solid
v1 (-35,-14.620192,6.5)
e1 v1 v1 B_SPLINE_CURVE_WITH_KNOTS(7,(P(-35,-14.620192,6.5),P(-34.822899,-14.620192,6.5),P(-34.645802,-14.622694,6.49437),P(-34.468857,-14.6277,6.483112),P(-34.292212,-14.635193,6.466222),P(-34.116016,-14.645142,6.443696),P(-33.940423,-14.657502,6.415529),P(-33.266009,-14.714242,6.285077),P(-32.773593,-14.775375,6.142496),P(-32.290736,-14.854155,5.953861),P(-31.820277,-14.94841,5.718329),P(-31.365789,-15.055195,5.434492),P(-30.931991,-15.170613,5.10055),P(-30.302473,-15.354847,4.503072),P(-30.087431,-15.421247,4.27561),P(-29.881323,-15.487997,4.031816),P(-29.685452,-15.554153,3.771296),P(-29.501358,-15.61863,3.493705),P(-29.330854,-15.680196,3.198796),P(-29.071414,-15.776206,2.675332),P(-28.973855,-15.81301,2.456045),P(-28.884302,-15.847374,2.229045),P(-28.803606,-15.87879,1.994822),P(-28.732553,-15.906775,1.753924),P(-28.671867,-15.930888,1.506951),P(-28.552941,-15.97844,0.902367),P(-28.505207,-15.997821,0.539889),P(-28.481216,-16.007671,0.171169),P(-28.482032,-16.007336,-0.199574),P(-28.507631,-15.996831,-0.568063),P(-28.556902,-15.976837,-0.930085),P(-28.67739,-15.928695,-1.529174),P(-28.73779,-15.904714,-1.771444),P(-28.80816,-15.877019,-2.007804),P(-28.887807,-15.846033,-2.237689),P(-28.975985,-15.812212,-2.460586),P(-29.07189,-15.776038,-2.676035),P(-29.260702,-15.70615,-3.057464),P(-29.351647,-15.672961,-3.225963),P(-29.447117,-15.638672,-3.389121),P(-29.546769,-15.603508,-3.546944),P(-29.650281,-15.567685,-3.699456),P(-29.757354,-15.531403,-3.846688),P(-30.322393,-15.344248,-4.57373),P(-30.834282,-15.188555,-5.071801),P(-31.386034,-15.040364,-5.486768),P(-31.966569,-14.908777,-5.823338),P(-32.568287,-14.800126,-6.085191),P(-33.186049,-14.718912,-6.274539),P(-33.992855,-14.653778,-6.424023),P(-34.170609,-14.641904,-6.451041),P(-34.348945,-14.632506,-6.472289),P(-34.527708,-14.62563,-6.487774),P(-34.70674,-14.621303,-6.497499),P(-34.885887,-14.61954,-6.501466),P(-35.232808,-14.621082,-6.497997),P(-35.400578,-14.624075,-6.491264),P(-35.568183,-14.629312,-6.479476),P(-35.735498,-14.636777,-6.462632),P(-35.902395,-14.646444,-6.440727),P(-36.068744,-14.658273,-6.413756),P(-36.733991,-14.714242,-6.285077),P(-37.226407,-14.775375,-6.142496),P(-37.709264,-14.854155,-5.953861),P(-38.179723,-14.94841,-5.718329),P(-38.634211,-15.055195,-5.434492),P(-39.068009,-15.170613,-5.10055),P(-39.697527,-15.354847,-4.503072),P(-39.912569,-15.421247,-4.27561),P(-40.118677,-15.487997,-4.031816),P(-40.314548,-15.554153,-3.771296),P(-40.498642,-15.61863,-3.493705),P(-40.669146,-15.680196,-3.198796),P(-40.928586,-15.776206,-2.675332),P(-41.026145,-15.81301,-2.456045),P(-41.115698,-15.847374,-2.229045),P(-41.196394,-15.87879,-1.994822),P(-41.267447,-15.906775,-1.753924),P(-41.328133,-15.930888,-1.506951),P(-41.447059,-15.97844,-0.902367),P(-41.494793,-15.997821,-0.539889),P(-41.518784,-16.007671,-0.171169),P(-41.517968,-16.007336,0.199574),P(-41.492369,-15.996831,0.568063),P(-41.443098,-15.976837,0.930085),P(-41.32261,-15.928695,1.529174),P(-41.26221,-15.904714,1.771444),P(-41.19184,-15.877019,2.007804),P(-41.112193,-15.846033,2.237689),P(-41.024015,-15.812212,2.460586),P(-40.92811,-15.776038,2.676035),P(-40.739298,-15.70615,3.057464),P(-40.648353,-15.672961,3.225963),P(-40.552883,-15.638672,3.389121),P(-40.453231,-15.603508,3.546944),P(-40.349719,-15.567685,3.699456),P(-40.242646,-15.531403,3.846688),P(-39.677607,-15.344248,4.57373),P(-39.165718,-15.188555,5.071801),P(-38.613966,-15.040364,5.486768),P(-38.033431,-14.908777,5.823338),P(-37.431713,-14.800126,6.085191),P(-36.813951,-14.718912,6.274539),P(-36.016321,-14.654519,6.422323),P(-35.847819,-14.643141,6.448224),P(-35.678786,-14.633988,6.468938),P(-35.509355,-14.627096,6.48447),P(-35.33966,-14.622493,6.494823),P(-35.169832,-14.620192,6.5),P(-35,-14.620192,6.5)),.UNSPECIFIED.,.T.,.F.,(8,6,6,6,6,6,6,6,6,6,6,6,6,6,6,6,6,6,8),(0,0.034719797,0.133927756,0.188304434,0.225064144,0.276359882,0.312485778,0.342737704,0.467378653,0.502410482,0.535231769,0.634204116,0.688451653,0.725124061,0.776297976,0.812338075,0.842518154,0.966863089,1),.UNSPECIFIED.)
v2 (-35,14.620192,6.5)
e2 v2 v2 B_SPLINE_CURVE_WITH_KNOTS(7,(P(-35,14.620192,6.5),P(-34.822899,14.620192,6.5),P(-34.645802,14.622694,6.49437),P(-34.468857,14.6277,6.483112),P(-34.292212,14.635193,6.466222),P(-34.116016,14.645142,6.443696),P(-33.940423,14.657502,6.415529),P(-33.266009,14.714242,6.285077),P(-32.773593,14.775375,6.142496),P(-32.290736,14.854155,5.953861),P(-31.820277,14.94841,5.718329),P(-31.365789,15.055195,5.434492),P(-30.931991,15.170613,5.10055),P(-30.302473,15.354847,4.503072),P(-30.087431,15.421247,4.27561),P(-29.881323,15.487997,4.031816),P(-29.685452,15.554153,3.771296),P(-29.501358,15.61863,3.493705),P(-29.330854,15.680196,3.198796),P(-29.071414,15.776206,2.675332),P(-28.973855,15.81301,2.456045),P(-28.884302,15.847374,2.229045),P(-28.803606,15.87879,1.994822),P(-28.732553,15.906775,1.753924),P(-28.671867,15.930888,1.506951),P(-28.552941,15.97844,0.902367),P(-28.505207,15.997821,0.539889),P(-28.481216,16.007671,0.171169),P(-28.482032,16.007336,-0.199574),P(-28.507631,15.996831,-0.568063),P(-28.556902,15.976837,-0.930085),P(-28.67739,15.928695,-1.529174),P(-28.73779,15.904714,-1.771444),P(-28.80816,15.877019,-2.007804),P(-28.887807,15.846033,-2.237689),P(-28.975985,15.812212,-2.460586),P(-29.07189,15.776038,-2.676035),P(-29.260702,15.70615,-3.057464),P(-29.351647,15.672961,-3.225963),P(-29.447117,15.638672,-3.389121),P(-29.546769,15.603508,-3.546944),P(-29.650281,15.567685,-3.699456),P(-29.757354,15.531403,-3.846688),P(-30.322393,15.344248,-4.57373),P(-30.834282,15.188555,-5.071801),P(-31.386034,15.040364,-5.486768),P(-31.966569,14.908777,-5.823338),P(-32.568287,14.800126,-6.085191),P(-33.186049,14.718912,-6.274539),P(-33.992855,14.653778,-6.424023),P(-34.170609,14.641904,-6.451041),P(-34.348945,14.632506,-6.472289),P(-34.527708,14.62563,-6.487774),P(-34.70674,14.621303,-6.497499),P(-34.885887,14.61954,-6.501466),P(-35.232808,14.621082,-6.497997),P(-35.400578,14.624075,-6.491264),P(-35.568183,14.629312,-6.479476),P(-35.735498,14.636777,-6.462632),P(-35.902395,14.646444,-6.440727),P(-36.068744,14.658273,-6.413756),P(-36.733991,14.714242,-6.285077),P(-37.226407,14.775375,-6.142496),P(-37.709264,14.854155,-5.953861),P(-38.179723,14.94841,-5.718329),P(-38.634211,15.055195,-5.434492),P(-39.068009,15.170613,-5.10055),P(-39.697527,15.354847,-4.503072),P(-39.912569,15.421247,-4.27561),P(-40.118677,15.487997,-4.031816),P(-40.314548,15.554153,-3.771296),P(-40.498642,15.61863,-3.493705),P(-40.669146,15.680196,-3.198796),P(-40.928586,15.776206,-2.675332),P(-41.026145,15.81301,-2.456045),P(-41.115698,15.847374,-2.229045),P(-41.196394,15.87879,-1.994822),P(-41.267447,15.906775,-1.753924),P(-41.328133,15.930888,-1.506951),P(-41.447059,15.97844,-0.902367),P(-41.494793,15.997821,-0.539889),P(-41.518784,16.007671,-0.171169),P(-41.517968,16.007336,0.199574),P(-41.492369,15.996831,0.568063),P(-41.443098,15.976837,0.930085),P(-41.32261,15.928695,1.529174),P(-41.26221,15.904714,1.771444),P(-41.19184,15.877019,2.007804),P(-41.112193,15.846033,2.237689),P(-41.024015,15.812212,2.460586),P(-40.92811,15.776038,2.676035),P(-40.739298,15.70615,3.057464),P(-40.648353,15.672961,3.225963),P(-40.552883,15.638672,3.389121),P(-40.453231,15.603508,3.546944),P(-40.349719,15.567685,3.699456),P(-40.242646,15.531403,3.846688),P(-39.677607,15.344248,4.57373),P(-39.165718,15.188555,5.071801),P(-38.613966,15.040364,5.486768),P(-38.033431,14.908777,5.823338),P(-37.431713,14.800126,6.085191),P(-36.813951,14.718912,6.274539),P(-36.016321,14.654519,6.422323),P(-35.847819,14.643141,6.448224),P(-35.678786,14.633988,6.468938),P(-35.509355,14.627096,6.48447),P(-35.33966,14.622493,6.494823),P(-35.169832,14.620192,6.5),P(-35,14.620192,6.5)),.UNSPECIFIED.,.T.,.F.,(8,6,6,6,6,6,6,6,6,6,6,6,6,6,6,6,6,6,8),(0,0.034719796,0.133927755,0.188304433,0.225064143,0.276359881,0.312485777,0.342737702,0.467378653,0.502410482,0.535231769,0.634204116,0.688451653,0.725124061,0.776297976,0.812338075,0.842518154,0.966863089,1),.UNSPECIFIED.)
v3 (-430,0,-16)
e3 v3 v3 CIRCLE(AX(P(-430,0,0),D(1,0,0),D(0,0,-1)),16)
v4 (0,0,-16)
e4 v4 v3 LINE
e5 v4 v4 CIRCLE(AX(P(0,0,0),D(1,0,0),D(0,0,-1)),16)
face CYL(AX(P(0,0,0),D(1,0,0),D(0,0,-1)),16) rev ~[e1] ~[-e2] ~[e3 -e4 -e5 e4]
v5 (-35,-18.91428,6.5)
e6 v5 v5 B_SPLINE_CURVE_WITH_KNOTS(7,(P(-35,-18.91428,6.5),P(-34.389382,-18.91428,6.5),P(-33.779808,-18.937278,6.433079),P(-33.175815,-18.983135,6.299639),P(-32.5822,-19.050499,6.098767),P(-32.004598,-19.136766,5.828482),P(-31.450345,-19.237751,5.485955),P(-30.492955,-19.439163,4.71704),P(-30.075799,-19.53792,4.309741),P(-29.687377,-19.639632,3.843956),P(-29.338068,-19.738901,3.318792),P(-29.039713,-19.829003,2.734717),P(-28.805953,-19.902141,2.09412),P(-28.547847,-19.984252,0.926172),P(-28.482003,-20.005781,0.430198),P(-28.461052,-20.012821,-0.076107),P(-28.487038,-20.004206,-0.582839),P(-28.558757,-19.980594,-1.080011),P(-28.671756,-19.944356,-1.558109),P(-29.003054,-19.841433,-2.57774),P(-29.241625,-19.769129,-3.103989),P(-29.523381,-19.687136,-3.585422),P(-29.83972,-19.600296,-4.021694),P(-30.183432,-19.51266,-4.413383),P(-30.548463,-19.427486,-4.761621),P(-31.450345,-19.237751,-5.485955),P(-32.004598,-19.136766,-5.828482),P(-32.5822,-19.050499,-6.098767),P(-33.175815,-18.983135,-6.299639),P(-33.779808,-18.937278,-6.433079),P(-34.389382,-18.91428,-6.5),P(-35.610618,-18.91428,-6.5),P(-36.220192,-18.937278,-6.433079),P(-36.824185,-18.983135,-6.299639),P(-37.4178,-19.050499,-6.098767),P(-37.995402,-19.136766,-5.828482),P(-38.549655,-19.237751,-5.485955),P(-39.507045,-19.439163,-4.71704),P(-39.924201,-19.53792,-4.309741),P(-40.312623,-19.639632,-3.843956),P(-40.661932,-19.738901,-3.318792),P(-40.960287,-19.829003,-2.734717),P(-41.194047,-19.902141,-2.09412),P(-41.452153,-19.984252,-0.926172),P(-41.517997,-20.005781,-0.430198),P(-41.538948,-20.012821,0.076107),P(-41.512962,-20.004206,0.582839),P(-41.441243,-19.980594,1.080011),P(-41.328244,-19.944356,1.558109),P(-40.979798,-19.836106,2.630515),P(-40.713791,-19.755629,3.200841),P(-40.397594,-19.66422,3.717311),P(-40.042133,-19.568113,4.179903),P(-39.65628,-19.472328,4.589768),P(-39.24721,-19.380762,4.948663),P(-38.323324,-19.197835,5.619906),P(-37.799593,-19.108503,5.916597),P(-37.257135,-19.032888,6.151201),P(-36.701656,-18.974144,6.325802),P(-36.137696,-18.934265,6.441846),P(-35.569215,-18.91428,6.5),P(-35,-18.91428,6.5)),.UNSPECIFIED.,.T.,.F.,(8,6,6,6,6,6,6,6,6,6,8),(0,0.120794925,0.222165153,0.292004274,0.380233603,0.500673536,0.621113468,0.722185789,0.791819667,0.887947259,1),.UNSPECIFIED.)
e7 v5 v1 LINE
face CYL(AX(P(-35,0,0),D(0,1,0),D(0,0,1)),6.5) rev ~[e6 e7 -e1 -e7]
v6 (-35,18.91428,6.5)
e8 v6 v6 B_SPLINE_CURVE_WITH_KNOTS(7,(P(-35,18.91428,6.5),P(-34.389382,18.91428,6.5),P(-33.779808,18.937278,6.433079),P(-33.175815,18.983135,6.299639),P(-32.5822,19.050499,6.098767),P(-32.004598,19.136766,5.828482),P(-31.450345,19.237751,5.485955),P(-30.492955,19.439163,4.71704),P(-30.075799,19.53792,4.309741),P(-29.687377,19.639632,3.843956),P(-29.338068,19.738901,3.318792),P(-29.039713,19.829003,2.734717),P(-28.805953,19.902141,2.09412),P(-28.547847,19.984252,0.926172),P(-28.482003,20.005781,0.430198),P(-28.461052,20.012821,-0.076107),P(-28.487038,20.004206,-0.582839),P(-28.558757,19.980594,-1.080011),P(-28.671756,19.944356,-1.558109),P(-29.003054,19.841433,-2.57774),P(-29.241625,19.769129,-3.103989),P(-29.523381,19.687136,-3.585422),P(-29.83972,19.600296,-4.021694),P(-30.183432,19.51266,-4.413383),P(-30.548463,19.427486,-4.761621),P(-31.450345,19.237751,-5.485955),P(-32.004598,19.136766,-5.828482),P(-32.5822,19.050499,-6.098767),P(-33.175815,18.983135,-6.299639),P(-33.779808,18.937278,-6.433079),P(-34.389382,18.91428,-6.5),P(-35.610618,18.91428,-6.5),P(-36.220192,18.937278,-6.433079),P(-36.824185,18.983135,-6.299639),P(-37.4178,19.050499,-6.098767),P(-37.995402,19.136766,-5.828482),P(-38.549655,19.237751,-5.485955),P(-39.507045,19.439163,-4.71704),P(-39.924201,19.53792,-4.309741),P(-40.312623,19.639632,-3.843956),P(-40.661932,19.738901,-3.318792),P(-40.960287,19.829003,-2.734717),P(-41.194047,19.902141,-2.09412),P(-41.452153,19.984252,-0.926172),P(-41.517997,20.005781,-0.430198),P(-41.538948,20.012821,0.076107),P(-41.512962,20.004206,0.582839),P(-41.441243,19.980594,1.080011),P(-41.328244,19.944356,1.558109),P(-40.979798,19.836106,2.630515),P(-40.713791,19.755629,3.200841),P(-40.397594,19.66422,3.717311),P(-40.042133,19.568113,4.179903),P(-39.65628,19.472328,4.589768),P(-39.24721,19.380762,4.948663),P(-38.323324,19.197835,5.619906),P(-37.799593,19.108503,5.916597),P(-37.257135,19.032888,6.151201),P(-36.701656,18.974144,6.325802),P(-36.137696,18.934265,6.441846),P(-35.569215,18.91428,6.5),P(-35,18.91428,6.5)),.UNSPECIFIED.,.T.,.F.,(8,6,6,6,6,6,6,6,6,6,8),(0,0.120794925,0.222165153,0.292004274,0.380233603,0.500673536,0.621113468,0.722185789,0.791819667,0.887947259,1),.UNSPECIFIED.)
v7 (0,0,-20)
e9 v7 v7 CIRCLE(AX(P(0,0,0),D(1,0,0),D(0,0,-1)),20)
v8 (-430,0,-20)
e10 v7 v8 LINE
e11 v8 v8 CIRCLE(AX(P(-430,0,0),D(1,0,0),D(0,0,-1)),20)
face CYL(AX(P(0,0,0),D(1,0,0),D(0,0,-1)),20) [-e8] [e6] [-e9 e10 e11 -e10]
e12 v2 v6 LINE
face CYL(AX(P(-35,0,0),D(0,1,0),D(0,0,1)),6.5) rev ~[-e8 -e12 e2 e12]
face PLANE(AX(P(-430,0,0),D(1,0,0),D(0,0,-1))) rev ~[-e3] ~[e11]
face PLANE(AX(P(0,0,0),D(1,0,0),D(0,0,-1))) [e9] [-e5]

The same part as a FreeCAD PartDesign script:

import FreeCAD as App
import Part
import Sketcher
Q = App.Units.Quantity

doc = App.newDocument("Part")
body = doc.addObject("PartDesign::Body", "Body")

# Sketch on YZ plane
sketch1 = doc.addObject("Sketcher::SketchObject", "Sketch")
body.addObject(sketch1)
sketch1.AttachmentSupport = (doc.YZ_Plane, [""])
sketch1.MapMode = "FlatFace"
sketch1.addGeometry([
    Part.Circle(App.Vector(0, 0, 0), App.Vector(0, 0, 1), 20),
    Part.Circle(App.Vector(0, 0, 0), App.Vector(0, 0, 1), 16),
], False)
sketch1.addConstraint([
    Sketcher.Constraint("Coincident", 0, 3, -1, 1),
    Sketcher.Constraint("Coincident", 1, 3, -1, 1),
    Sketcher.Constraint("Diameter", 0, Q("40 mm")),
    Sketcher.Constraint("Diameter", 1, Q("32 mm")),
])
pad1 = doc.addObject("PartDesign::Pad", "Pad")
body.addObject(pad1)
pad1.Profile = sketch1
pad1.Length = 430
pad1.Reversed = True

# Sketch on XZ plane
sketch2 = doc.addObject("Sketcher::SketchObject", "Sketch001")
body.addObject(sketch2)
sketch2.AttachmentSupport = (doc.XZ_Plane, [""])
sketch2.MapMode = "FlatFace"
sketch2.addGeometry(Part.Circle(App.Vector(-35, 0, 0), App.Vector(0, 0, 1), 6), False)
sketch2.addConstraint([
    Sketcher.Constraint("PointOnObject", 0, 3, -1),
    Sketcher.Constraint("Diameter", 0, Q("13 mm")),
    Sketcher.Constraint("DistanceX", 0, 3, -1, 1, Q("35 mm")),
])
pocket1 = doc.addObject("PartDesign::Pocket", "Pocket")
body.addObject(pocket1)
pocket1.Profile = sketch2
pocket1.Length = 57
pocket1.Midplane = True

doc.recompute()
